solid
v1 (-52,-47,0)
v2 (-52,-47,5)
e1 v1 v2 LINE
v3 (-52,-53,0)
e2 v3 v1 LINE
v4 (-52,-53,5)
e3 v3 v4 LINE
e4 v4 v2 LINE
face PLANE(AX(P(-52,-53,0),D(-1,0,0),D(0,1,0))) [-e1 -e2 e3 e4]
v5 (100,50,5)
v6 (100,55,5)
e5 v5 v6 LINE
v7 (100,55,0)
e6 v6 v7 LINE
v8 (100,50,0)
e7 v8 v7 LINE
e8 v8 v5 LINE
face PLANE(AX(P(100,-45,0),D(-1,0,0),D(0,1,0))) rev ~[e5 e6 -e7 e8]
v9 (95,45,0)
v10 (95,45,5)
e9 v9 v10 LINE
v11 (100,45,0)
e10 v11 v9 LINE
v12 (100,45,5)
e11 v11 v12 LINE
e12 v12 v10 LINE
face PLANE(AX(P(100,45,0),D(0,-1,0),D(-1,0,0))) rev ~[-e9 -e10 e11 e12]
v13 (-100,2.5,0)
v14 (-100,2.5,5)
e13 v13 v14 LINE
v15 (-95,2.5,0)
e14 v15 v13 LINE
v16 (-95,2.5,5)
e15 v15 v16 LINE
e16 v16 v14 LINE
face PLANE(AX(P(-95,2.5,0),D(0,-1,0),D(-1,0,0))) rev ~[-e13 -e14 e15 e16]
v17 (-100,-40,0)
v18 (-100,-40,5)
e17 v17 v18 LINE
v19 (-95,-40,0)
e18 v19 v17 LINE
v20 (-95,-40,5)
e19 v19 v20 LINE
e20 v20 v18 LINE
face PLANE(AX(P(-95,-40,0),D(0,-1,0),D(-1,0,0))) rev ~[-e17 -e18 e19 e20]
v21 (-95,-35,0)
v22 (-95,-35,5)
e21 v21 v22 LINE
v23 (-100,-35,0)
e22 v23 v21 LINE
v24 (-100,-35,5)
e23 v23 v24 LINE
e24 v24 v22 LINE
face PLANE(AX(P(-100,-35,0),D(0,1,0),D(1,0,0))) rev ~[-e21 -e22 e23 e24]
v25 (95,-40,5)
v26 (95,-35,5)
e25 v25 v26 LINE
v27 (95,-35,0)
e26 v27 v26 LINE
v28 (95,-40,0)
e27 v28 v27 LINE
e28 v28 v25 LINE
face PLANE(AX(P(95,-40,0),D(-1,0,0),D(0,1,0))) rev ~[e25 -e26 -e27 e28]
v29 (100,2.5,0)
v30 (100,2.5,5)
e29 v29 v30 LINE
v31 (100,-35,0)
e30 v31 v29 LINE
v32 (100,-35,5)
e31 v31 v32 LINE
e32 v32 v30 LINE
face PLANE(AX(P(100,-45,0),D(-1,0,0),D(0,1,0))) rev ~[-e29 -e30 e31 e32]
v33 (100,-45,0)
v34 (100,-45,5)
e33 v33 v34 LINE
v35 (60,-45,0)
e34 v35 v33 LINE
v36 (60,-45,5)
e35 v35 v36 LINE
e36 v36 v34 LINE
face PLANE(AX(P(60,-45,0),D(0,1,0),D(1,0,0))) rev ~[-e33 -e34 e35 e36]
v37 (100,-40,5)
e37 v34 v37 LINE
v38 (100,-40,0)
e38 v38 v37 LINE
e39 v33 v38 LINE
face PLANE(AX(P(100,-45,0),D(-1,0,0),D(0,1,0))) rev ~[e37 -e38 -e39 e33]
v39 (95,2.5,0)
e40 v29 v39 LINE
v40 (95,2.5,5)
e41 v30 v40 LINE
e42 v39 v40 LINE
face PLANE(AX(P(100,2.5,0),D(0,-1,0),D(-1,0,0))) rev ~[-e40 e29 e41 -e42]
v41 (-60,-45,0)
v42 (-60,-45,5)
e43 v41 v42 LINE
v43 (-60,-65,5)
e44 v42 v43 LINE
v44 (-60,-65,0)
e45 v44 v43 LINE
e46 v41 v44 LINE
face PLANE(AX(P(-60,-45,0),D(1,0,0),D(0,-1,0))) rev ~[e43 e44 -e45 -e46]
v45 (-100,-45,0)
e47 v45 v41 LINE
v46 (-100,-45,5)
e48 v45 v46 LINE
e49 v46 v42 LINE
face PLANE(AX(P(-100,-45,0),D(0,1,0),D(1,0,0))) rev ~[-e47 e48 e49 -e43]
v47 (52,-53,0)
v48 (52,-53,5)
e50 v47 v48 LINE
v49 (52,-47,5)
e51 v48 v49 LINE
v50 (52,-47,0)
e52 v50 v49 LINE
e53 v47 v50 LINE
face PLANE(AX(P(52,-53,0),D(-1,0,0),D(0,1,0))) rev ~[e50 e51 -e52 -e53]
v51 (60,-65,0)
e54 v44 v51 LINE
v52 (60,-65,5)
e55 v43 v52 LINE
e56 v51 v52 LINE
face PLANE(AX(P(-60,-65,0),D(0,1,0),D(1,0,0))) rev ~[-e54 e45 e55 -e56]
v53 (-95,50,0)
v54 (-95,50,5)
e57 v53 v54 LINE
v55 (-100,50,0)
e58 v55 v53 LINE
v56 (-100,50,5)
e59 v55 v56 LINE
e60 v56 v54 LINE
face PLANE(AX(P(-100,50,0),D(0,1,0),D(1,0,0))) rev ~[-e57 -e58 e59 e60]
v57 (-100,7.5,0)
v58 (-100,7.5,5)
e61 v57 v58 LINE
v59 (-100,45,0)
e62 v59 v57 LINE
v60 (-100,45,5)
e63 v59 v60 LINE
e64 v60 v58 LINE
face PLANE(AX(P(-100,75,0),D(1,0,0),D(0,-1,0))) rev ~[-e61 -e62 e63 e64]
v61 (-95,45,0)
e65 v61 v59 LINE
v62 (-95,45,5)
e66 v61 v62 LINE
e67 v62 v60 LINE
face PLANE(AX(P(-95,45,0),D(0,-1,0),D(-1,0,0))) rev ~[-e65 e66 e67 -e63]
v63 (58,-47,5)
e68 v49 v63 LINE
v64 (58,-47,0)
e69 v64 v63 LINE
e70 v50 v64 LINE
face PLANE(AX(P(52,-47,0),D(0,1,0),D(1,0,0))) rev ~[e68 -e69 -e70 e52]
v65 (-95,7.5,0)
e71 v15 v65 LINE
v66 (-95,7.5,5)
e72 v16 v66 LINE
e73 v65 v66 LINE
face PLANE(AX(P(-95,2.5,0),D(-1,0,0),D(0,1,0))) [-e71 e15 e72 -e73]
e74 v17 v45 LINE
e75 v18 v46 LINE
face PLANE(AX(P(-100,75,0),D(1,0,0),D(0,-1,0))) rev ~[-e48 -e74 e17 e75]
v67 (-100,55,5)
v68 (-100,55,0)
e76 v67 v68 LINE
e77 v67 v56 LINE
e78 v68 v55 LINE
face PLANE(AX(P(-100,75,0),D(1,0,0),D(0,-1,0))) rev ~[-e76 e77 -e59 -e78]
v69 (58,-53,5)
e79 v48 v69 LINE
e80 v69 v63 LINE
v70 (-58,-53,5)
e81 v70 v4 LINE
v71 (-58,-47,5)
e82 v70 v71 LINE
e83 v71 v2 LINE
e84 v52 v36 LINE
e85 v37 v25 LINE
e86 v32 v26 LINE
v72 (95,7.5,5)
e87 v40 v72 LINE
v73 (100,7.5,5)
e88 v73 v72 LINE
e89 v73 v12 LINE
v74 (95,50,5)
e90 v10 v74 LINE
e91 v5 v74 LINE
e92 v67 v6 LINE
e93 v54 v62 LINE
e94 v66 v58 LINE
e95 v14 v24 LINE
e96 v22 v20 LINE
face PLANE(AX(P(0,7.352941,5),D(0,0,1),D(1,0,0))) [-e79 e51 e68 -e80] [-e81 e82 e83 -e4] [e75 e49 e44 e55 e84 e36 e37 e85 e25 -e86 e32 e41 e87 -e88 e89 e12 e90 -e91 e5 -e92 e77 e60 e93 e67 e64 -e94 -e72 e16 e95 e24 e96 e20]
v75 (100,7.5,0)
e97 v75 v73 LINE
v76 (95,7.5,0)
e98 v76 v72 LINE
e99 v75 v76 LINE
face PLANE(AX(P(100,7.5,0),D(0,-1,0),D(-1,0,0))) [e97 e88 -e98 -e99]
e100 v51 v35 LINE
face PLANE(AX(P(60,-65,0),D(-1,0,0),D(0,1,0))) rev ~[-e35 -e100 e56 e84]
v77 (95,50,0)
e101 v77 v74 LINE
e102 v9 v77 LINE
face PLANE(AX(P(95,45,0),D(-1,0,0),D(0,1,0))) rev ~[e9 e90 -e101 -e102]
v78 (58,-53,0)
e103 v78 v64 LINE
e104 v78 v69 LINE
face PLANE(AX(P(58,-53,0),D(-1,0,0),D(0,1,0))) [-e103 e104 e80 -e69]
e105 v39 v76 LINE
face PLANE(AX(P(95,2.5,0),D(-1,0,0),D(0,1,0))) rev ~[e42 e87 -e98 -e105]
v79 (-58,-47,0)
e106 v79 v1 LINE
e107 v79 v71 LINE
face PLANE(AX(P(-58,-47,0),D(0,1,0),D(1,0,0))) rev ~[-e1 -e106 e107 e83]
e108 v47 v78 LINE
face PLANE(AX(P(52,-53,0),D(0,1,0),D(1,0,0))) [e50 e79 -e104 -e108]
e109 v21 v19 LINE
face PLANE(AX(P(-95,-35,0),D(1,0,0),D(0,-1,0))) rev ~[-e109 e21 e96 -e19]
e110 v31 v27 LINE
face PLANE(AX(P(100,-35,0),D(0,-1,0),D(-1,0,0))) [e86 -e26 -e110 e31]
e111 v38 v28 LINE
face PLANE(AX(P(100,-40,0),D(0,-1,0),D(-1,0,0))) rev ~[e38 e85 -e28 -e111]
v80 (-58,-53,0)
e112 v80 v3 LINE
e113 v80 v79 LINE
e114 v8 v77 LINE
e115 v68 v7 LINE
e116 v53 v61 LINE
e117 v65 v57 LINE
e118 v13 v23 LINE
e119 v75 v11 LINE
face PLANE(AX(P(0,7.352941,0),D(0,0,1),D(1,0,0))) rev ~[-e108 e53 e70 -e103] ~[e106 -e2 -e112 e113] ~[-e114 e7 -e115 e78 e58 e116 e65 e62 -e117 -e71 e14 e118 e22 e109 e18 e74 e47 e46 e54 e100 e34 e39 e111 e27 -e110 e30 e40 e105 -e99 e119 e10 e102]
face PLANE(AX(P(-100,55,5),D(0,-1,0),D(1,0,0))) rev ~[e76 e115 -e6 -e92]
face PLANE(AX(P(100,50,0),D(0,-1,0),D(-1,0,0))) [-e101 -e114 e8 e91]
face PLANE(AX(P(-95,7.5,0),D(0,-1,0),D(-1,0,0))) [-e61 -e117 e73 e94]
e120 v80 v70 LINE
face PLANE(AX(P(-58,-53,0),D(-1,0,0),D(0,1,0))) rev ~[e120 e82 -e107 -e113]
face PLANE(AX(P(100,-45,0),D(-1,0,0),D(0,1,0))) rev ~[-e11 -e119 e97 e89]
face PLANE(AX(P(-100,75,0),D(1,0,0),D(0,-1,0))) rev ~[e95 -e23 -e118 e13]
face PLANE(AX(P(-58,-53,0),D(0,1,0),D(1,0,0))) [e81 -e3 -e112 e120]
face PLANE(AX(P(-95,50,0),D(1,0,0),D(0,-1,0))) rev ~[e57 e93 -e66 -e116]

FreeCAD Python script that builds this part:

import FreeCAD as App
import Part
import Sketcher
from FreeCAD import Vector

doc = App.newDocument("Part")
body = doc.addObject("PartDesign::Body", "Body")

# Sketch on XY plane
sketch1 = doc.addObject("Sketcher::SketchObject", "Sketch")
body.addObject(sketch1)
sketch1.AttachmentSupport = (doc.XY_Plane, [""])
sketch1.MapMode = "FlatFace"
sketch1.addGeometry([
    Part.LineSegment(Vector(-100, 75, 0), Vector(-100, -45, 0)),  # 0
    Part.LineSegment(Vector(-100, -45, 0), Vector(-60, -45, 0)),  # 1
    Part.LineSegment(Vector(-60, -45, 0), Vector(-60, -65, 0)),  # 2
    Part.LineSegment(Vector(-60, -65, 0), Vector(60, -65, 0)),  # 3
    Part.LineSegment(Vector(60, -65, 0), Vector(60, -45, 0)),  # 4
    Part.LineSegment(Vector(60, -45, 0), Vector(100, -45, 0)),  # 5
    Part.LineSegment(Vector(100, -45, 0), Vector(100, 75, 0)),  # 6
    Part.LineSegment(Vector(100, 75, 0), Vector(-100, 75, 0)),  # 7
    Part.LineSegment(Vector(-52, -53, 0), Vector(-58, -53, 0)),  # 8
    Part.LineSegment(Vector(-58, -53, 0), Vector(-58, -47, 0)),  # 9
    Part.LineSegment(Vector(-58, -47, 0), Vector(-52, -47, 0)),  # 10
    Part.LineSegment(Vector(-52, -47, 0), Vector(-52, -53, 0)),  # 11
    Part.LineSegment(Vector(58, -53, 0), Vector(52, -53, 0)),  # 12
    Part.LineSegment(Vector(52, -53, 0), Vector(52, -47, 0)),  # 13
    Part.LineSegment(Vector(52, -47, 0), Vector(58, -47, 0)),  # 14
    Part.LineSegment(Vector(58, -47, 0), Vector(58, -53, 0)),  # 15
], False)
sketch1.addConstraint([
    Sketcher.Constraint("Coincident", 0, 2, 1, 1),
    Sketcher.Constraint("Coincident", 1, 2, 2, 1),
    Sketcher.Constraint("Coincident", 2, 2, 3, 1),
    Sketcher.Constraint("Coincident", 3, 2, 4, 1),
    Sketcher.Constraint("Coincident", 4, 2, 5, 1),
    Sketcher.Constraint("Coincident", 5, 2, 6, 1),
    Sketcher.Constraint("Coincident", 6, 2, 7, 1),
    Sketcher.Constraint("Coincident", 7, 2, 0, 1),
    Sketcher.Constraint("Coincident", 8, 2, 9, 1),
    Sketcher.Constraint("Coincident", 9, 2, 10, 1),
    Sketcher.Constraint("Coincident", 10, 2, 11, 1),
    Sketcher.Constraint("Coincident", 11, 2, 8, 1),
    Sketcher.Constraint("Coincident", 12, 2, 13, 1),
    Sketcher.Constraint("Coincident", 13, 2, 14, 1),
    Sketcher.Constraint("Coincident", 14, 2, 15, 1),
    Sketcher.Constraint("Coincident", 15, 2, 12, 1),
    Sketcher.Constraint("Vertical", 0),
    Sketcher.Constraint("Horizontal", 1),
    Sketcher.Constraint("Vertical", 2),
    Sketcher.Constraint("Horizontal", 3),
    Sketcher.Constraint("Vertical", 4),
    Sketcher.Constraint("Horizontal", 5),
    Sketcher.Constraint("Vertical", 6),
    Sketcher.Constraint("Horizontal", 7),
    Sketcher.Constraint("Horizontal", 8),
    Sketcher.Constraint("Vertical", 9),
    Sketcher.Constraint("Horizontal", 10),
    Sketcher.Constraint("Vertical", 11),
    Sketcher.Constraint("Horizontal", 12),
    Sketcher.Constraint("Vertical", 13),
    Sketcher.Constraint("Horizontal", 14),
    Sketcher.Constraint("Vertical", 15),
    Sketcher.Constraint("Symmetric", 1, 2, 4, 2, -2),
    Sketcher.Constraint("Symmetric", 11, 2, 12, 2, -2),
    Sketcher.Constraint("Symmetric", 9, 2, 14, 2, -2),
    Sketcher.Constraint("Equal", 1, 5),
    Sketcher.Constraint("Equal", 3, 0),
    Sketcher.Constraint("Equal", 14, 9),
    Sketcher.Constraint("DistanceX", 1, 1, 1, 2, 40.0),
    Sketcher.Constraint("DistanceX", 3, 1, 3, 2, 120.0),
    Sketcher.Constraint("DistanceX", 8, 2, 8, 1, 6.0),
    Sketcher.Constraint("DistanceY", 2, 2, 2, 1, 20.0),
    Sketcher.Constraint("DistanceY", 0, 2, -1, 1, 45.0),
    Sketcher.Constraint("DistanceX", 8, 2, -1, 1, 58.0),
    Sketcher.Constraint("DistanceY", 8, 2, -1, 1, 53.0),
])
pad1 = doc.addObject("PartDesign::Pad", "Pad")
body.addObject(pad1)
pad1.Profile = sketch1
pad1.Length = 5

# Sketch on XY plane
sketch2 = doc.addObject("Sketcher::SketchObject", "Sketch001")
body.addObject(sketch2)
sketch2.AttachmentSupport = (doc.XY_Plane, [""])
sketch2.MapMode = "FlatFace"
sketch2.AttachmentOffset = App.Placement(Vector(0, 0, 5), App.Rotation())
sketch2.addGeometry([
    Part.LineSegment(Vector(-100, 75, 0), Vector(-100, 55, 0)),
    Part.LineSegment(Vector(-100, 55, 0), Vector(100, 55, 0)),
    Part.LineSegment(Vector(100, 55, 0), Vector(100, 75, 0)),
    Part.LineSegment(Vector(100, 75, 0), Vector(-100, 75, 0)),
], False)
sketch2.addConstraint([
    Sketcher.Constraint("Coincident", 0, 2, 1, 1),
    Sketcher.Constraint("Coincident", 1, 2, 2, 1),
    Sketcher.Constraint("Coincident", 2, 2, 3, 1),
    Sketcher.Constraint("Coincident", 3, 2, 0, 1),
    Sketcher.Constraint("Vertical", 0),
    Sketcher.Constraint("Horizontal", 1),
    Sketcher.Constraint("Vertical", 2),
    Sketcher.Constraint("Horizontal", 3),
    Sketcher.Constraint("DistanceX", 1, 1, 1, 2, 200.0),
    Sketcher.Constraint("DistanceY", 0, 2, 0, 1, 20.0),
    Sketcher.Constraint("DistanceX", 0, 2, -1, 1, 100.0),
    Sketcher.Constraint("DistanceY", -1, 1, 0, 2, 55.0),
])
pocket1 = doc.addObject("PartDesign::Pocket", "Pocket")
body.addObject(pocket1)
pocket1.Profile = sketch2
pocket1.Length = 5

# Sketch on XY plane
sketch3 = doc.addObject("Sketcher::SketchObject", "Sketch002")
body.addObject(sketch3)
sketch3.AttachmentSupport = (doc.XY_Plane, [""])
sketch3.MapMode = "FlatFace"
sketch3.addGeometry([
    Part.LineSegment(Vector(100, 50, 0), Vector(100, 45, 0)),  # 0
    Part.LineSegment(Vector(100, 45, 0), Vector(95, 45, 0)),  # 1
    Part.LineSegment(Vector(95, 45, 0), Vector(95, 50, 0)),  # 2
    Part.LineSegment(Vector(95, 50, 0), Vector(100, 50, 0)),  # 3
    Part.LineSegment(Vector(-95, 50, 0), Vector(-95, 45, 0)),  # 4
    Part.LineSegment(Vector(-95, 45, 0), Vector(-100, 45, 0)),  # 5
    Part.LineSegment(Vector(-100, 45, 0), Vector(-100, 50, 0)),  # 6
    Part.LineSegment(Vector(-100, 50, 0), Vector(-95, 50, 0)),  # 7
    Part.LineSegment(Vector(100, 8, 0), Vector(100, 2, 0)),  # 8
    Part.LineSegment(Vector(100, 2, 0), Vector(95, 2, 0)),  # 9
    Part.LineSegment(Vector(95, 2, 0), Vector(95, 8, 0)),  # 10
    Part.LineSegment(Vector(95, 8, 0), Vector(100, 8, 0)),  # 11
    Part.LineSegment(Vector(-95, 8, 0), Vector(-95, 2, 0)),  # 12
    Part.LineSegment(Vector(-95, 2, 0), Vector(-100, 2, 0)),  # 13
    Part.LineSegment(Vector(-100, 2, 0), Vector(-100, 8, 0)),  # 14
    Part.LineSegment(Vector(-100, 8, 0), Vector(-95, 8, 0)),  # 15
    Part.LineSegment(Vector(100, -35, 0), Vector(100, -40, 0)),  # 16
    Part.LineSegment(Vector(100, -40, 0), Vector(95, -40, 0)),  # 17
    Part.LineSegment(Vector(95, -40, 0), Vector(95, -35, 0)),  # 18
    Part.LineSegment(Vector(95, -35, 0), Vector(100, -35, 0)),  # 19
    Part.LineSegment(Vector(-100, -40, 0), Vector(-100, -35, 0)),  # 20
    Part.LineSegment(Vector(-100, -35, 0), Vector(-95, -35, 0)),  # 21
    Part.LineSegment(Vector(-95, -35, 0), Vector(-95, -40, 0)),  # 22
    Part.LineSegment(Vector(-95, -40, 0), Vector(-100, -40, 0)),  # 23
], False)
sketch3.addConstraint([
    Sketcher.Constraint("Coincident", 0, 2, 1, 1),
    Sketcher.Constraint("Coincident", 1, 2, 2, 1),
    Sketcher.Constraint("Coincident", 2, 2, 3, 1),
    Sketcher.Constraint("Coincident", 3, 2, 0, 1),
    Sketcher.Constraint("Coincident", 4, 2, 5, 1),
    Sketcher.Constraint("Coincident", 5, 2, 6, 1),
    Sketcher.Constraint("Coincident", 6, 2, 7, 1),
    Sketcher.Constraint("Coincident", 7, 2, 4, 1),
    Sketcher.Constraint("Coincident", 8, 2, 9, 1),
    Sketcher.Constraint("Coincident", 9, 2, 10, 1),
    Sketcher.Constraint("Coincident", 10, 2, 11, 1),
    Sketcher.Constraint("Coincident", 11, 2, 8, 1),
    Sketcher.Constraint("Coincident", 12, 2, 13, 1),
    Sketcher.Constraint("Coincident", 13, 2, 14, 1),
    Sketcher.Constraint("Coincident", 14, 2, 15, 1),
    Sketcher.Constraint("Coincident", 15, 2, 12, 1),
    Sketcher.Constraint("Coincident", 16, 2, 17, 1),
    Sketcher.Constraint("Coincident", 17, 2, 18, 1),
    Sketcher.Constraint("Coincident", 18, 2, 19, 1),
    Sketcher.Constraint("Coincident", 19, 2, 16, 1),
    Sketcher.Constraint("Coincident", 20, 2, 21, 1),
    Sketcher.Constraint("Coincident", 21, 2, 22, 1),
    Sketcher.Constraint("Coincident", 22, 2, 23, 1),
    Sketcher.Constraint("Coincident", 23, 2, 20, 1),
    Sketcher.Constraint("Vertical", 0),
    Sketcher.Constraint("Horizontal", 1),
    Sketcher.Constraint("Vertical", 2),
    Sketcher.Constraint("Horizontal", 3),
    Sketcher.Constraint("Vertical", 4),
    Sketcher.Constraint("Horizontal", 5),
    Sketcher.Constraint("Vertical", 6),
    Sketcher.Constraint("Horizontal", 7),
    Sketcher.Constraint("Vertical", 8),
    Sketcher.Constraint("Horizontal", 9),
    Sketcher.Constraint("Vertical", 10),
    Sketcher.Constraint("Horizontal", 11),
    Sketcher.Constraint("Vertical", 12),
    Sketcher.Constraint("Horizontal", 13),
    Sketcher.Constraint("Vertical", 14),
    Sketcher.Constraint("Horizontal", 15),
    Sketcher.Constraint("Vertical", 16),
    Sketcher.Constraint("Horizontal", 17),
    Sketcher.Constraint("Vertical", 18),
    Sketcher.Constraint("Horizontal", 19),
    Sketcher.Constraint("Vertical", 20),
    Sketcher.Constraint("Horizontal", 21),
    Sketcher.Constraint("Vertical", 22),
    Sketcher.Constraint("Horizontal", 23),
    Sketcher.Constraint("Symmetric", 1, 2, 4, 2, -2),
    Sketcher.Constraint("Symmetric", 3, 2, 6, 2, -2),
    Sketcher.Constraint("Symmetric", 9, 2, 12, 2, -2),
    Sketcher.Constraint("Symmetric", 11, 2, 14, 2, -2),
    Sketcher.Constraint("Symmetric", 19, 2, 20, 2, -2),
    Sketcher.Constraint("Symmetric", 17, 2, 22, 2, -2),
    Sketcher.Constraint("Vertical", 3, 2, 8, 2),
    Sketcher.Constraint("Vertical", 2, 2, 9, 2),
    Sketcher.Constraint("Vertical", 11, 2, 16, 2),
    Sketcher.Constraint("Vertical", 10, 2, 17, 2),
    Sketcher.Constraint("Equal", 23, 0),
    Sketcher.Constraint("Equal", 6, 8),
    Sketcher.Constraint("Equal", 14, 16),
    Sketcher.Constraint("DistanceX", 1, 2, 1, 1, 5.0),
    Sketcher.Constraint("DistanceX", -1, 1, 0, 2, 100.0),
    Sketcher.Constraint("DistanceY", -1, 1, 0, 2, 45.0),
    Sketcher.Constraint("DistanceY", 16, 2, -1, 1, 40.0),
    Sketcher.Constraint("DistanceY", -1, 1, 8, 2, 2.5),
])
pocket2 = doc.addObject("PartDesign::Pocket", "Pocket001")
body.addObject(pocket2)
pocket2.Profile = sketch3
pocket2.Length = 5
pocket2.Reversed = True

doc.recompute()
